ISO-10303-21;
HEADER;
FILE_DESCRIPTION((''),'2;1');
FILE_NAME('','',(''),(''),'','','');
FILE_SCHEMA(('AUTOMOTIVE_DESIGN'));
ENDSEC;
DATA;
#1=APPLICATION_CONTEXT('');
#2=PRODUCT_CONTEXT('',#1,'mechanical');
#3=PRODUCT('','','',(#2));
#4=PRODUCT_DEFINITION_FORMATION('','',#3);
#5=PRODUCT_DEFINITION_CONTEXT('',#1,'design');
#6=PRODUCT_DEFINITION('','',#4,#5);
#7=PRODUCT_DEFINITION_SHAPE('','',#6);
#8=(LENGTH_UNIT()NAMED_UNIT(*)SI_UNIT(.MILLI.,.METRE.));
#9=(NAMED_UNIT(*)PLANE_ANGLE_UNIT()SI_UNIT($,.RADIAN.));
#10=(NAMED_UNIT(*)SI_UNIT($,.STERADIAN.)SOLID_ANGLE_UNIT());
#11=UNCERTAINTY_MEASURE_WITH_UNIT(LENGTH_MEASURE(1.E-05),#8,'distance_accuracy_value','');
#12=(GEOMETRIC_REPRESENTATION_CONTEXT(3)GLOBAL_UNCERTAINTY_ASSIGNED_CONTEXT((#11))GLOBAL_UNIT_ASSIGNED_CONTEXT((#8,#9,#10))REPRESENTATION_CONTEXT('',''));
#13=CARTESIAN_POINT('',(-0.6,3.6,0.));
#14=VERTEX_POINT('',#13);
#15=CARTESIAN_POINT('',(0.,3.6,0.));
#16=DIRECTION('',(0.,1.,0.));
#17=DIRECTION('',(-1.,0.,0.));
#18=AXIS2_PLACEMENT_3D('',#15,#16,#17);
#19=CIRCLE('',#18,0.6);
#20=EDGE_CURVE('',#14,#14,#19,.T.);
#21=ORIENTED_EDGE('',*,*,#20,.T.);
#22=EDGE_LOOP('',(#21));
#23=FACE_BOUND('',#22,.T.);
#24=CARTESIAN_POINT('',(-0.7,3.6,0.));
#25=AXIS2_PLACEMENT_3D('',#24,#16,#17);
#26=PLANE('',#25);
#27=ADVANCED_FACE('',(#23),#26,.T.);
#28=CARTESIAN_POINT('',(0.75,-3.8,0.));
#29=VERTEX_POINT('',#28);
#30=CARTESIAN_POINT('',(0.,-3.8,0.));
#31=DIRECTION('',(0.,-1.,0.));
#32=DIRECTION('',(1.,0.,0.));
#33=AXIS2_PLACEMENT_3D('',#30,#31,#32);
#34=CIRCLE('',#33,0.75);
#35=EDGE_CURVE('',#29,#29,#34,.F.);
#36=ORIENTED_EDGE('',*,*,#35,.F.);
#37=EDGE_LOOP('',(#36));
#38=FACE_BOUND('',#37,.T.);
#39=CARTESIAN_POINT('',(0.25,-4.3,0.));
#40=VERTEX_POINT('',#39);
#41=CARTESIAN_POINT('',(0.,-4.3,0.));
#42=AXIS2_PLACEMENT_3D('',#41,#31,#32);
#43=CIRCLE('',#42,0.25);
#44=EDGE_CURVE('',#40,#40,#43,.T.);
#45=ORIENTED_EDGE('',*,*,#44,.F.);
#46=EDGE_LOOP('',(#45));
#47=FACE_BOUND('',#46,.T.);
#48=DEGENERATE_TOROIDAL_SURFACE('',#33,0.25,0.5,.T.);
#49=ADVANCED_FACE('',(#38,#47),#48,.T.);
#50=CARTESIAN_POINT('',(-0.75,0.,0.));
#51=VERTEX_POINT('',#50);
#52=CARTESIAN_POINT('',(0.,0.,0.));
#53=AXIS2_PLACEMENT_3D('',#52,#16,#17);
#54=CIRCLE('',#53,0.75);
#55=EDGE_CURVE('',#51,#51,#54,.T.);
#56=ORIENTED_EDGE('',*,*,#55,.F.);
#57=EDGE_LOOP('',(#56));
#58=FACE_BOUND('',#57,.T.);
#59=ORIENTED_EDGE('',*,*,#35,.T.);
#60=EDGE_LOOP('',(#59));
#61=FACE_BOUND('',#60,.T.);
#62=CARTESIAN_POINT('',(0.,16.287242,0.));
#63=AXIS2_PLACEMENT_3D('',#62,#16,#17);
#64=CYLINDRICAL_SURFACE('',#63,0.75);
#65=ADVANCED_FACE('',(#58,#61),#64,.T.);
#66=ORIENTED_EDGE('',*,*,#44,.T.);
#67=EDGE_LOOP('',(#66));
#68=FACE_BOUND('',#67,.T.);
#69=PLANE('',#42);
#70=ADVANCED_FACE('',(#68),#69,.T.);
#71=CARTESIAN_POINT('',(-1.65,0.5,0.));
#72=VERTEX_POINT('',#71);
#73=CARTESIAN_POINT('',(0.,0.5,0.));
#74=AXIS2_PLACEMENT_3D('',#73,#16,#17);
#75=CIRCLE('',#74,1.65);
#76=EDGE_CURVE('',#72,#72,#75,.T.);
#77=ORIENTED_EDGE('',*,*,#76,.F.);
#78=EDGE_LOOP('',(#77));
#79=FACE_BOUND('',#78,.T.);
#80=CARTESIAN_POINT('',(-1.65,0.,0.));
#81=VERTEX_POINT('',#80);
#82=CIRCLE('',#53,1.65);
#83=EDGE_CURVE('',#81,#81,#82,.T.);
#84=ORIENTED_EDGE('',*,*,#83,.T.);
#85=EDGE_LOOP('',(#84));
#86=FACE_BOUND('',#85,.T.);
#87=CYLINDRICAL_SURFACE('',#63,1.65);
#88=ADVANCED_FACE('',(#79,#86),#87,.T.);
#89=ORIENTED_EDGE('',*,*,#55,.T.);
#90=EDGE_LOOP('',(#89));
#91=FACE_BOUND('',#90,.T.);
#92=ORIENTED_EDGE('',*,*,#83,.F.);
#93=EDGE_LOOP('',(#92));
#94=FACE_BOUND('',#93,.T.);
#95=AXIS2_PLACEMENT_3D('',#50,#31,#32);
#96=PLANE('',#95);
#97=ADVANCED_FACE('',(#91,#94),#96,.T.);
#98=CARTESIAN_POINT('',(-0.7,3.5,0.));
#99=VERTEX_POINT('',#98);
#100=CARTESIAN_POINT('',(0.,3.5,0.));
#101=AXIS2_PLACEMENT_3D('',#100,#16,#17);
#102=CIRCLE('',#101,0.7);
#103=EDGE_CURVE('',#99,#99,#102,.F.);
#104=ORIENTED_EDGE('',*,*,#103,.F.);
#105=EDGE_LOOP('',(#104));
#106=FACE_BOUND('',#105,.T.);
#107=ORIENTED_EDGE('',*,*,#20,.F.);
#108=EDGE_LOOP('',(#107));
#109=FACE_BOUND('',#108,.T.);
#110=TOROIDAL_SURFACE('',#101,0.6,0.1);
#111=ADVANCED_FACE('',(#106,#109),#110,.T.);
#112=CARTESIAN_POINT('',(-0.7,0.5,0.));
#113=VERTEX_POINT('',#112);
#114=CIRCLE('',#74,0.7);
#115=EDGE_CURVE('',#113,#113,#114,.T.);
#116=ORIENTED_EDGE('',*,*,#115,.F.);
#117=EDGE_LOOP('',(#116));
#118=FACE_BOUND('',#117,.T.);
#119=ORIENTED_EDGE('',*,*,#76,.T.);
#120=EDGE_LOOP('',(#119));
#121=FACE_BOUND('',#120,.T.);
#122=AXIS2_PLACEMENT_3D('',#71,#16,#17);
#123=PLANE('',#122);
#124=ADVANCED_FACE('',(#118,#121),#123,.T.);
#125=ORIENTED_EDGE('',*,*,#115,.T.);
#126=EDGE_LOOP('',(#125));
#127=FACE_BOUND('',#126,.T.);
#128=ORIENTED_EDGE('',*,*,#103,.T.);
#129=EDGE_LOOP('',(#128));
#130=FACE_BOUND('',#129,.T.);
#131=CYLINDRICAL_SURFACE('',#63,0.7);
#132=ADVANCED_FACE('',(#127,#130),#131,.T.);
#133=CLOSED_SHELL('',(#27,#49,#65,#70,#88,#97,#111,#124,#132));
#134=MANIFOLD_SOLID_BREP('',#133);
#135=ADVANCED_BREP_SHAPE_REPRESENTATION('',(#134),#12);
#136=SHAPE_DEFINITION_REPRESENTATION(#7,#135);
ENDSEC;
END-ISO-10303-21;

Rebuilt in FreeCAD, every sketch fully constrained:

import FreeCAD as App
import Part
import Sketcher

V = App.Vector


def edges_at(feature, points):
    """Names of the edges that pass closest to the given points."""
    edges = feature.Shape.Edges
    near = lambda p: min(range(len(edges)), key=lambda i: edges[i].distToShape(Part.Vertex(*p))[0])
    return sorted({f"Edge{near(p) + 1}" for p in points})

doc = App.newDocument("Part")
body = doc.addObject("PartDesign::Body", "Body")

sketch1 = body.newObject("Sketcher::SketchObject", "Sketch")
sketch1.AttachmentSupport = (doc.getObject("XY_Plane"), [""])
sketch1.MapMode = "FlatFace"
sketch1.addGeometry([
    Part.LineSegment(V(-0.75, -4.3, 0), V(0, -4.3, 0)),
    Part.LineSegment(V(0, -4.3, 0), V(0, 3.6, 0)),
    Part.LineSegment(V(0, 3.6, 0), V(-0.7, 3.6, 0)),
    Part.LineSegment(V(-0.7, 3.6, 0), V(-0.7, 0.5, 0)),
    Part.LineSegment(V(-0.7, 0.5, 0), V(-1.65, 0.5, 0)),
    Part.LineSegment(V(-1.65, 0.5, 0), V(-1.65, 0, 0)),
    Part.LineSegment(V(-1.65, 0, 0), V(-0.75, 0, 0)),
    Part.LineSegment(V(-0.75, 0, 0), V(-0.75, -4.3, 0)),
], False)
sketch1.addConstraint([
    Sketcher.Constraint("Coincident", 0, 2, 1, 1),
    Sketcher.Constraint("Coincident", 1, 2, 2, 1),
    Sketcher.Constraint("Coincident", 2, 2, 3, 1),
    Sketcher.Constraint("Coincident", 3, 2, 4, 1),
    Sketcher.Constraint("Coincident", 4, 2, 5, 1),
    Sketcher.Constraint("Coincident", 5, 2, 6, 1),
    Sketcher.Constraint("Coincident", 6, 2, 7, 1),
    Sketcher.Constraint("Coincident", 7, 2, 0, 1),
    Sketcher.Constraint("Horizontal", 0),
    Sketcher.Constraint("Vertical", 1),
    Sketcher.Constraint("Horizontal", 2),
    Sketcher.Constraint("Vertical", 3),
    Sketcher.Constraint("Horizontal", 4),
    Sketcher.Constraint("Vertical", 5),
    Sketcher.Constraint("Horizontal", 6),
    Sketcher.Constraint("Vertical", 7),
    Sketcher.Constraint("PointOnObject", 0, 2, -2),
    Sketcher.Constraint("PointOnObject", 5, 2, -1),
    Sketcher.Constraint("DistanceX", 2, 2, 2, 1, 0.7),
    Sketcher.Constraint("DistanceX", 6, 1, 6, 2, 0.9),
    Sketcher.Constraint("DistanceY", 1, 1, 1, 2, 7.9),
    Sketcher.Constraint("DistanceY", 3, 2, 3, 1, 3.1),
    Sketcher.Constraint("DistanceY", 5, 2, 5, 1, 0.5),
    Sketcher.Constraint("DistanceX", 0, 1, 0, 2, 0.75),
])
revolution = body.newObject("PartDesign::Revolution", "Revolution")
revolution.Profile = sketch1
revolution.ReferenceAxis = (sketch1, ["V_Axis"])
revolution.Angle = 360
doc.recompute()

fillet = body.newObject("PartDesign::Fillet", "Fillet")
fillet.Base = (revolution, edges_at(revolution, [(0.7, 3.6, 0)]))
fillet.Radius = 0.1
doc.recompute()

fillet2 = body.newObject("PartDesign::Fillet", "Fillet001")
fillet2.Base = (fillet, edges_at(fillet, [(0.75, -4.3, 0)]))
fillet2.Radius = 0.5

doc.recompute()
